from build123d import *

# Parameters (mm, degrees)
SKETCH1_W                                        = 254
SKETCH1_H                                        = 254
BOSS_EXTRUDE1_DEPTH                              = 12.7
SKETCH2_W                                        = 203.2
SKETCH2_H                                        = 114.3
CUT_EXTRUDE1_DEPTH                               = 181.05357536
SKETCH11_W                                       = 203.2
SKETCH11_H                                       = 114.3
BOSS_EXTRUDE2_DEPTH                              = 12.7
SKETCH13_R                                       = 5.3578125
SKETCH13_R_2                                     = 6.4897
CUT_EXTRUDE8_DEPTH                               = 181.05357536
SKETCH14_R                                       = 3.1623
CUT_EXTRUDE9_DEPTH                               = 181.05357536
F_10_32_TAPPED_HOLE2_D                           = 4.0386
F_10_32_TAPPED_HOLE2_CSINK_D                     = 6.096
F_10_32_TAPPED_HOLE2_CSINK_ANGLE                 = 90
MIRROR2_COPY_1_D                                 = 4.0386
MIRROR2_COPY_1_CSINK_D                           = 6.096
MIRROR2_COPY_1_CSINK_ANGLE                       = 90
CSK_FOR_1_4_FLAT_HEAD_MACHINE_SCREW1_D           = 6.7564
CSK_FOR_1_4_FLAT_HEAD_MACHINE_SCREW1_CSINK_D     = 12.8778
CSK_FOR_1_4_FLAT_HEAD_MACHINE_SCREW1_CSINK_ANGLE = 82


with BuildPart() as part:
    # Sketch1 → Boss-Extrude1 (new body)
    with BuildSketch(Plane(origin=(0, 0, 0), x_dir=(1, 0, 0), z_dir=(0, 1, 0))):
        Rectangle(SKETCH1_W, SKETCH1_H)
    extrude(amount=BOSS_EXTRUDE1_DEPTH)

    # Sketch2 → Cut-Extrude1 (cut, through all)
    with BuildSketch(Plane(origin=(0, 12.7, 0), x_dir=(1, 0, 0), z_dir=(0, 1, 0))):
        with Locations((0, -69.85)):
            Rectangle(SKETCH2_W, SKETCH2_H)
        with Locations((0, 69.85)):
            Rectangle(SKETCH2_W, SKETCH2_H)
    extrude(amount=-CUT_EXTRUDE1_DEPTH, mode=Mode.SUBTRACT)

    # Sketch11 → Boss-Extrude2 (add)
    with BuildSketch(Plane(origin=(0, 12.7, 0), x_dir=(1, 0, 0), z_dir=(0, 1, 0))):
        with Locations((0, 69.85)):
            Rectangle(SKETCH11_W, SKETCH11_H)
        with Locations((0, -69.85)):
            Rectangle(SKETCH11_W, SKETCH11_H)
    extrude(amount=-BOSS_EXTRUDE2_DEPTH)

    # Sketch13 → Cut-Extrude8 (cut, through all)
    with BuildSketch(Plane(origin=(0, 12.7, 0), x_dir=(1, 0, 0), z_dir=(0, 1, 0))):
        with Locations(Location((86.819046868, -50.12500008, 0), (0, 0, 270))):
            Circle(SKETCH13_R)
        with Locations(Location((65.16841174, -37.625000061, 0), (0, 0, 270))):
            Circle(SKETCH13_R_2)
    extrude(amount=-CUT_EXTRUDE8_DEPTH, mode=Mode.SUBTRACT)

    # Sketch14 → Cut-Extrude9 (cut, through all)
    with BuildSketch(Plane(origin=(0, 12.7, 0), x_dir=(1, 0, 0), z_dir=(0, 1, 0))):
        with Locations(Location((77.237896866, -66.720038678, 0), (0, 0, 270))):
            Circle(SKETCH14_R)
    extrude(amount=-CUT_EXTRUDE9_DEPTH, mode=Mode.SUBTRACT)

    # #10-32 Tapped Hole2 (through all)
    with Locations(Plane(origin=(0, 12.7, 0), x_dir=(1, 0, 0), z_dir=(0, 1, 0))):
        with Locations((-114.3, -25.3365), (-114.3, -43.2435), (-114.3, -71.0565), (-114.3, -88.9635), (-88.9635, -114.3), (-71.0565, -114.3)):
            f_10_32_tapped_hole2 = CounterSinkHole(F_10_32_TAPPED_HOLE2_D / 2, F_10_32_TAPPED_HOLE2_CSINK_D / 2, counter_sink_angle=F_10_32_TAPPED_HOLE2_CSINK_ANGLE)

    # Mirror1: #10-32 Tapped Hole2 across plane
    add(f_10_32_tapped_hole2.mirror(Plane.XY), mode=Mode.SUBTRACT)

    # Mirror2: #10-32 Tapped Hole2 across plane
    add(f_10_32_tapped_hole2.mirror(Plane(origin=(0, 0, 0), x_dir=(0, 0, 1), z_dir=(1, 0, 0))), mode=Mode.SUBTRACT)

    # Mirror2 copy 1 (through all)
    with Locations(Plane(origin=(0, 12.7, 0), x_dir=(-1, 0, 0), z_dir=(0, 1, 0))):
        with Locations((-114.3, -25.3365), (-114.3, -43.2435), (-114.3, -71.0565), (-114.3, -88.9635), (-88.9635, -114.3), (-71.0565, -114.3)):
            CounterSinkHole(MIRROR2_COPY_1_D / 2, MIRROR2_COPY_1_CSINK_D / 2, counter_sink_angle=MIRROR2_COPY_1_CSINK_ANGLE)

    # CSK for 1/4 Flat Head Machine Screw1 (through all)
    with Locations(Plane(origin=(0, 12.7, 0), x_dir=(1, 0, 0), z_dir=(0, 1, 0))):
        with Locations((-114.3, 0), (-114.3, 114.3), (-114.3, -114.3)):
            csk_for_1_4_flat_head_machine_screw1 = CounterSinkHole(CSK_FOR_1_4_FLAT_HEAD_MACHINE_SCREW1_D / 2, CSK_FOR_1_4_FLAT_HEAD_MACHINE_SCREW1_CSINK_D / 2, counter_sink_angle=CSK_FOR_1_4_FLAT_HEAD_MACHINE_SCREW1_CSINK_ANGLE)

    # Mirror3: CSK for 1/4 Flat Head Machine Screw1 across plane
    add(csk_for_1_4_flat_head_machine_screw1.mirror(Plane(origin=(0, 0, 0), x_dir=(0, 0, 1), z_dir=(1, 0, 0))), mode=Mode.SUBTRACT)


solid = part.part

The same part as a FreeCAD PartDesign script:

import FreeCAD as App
import Part
import Sketcher
from FreeCAD import Vector
Q = App.Units.Quantity

doc = App.newDocument("Part")
params = doc.addObject("Spreadsheet::Sheet", "Params")
for row, (alias, value) in enumerate([
    ("sketch1_width", "10 in"),
    ("pad1_length", "0.5 in"),
    ("sketch2_width", "8 in"),
    ("sketch2_height", "4.5 in"),
    ("sketch3_width", "8 in"),
    ("sketch3_height", "4.5 in"),
    ("pad2_length", "0.5 in"),
    ("sketch4_diameter", "0.421875 in"),
    ("sketch4_diameter2", "0.511 in"),
    ("sketch5_diameter", "0.249 in"),
    ("sketch6_diameter", "0.159 in"),
    ("hole_diameter", "0.159 in"),
    ("hole_csink_diameter", "0.24 in"),
    ("sketch7_diameter", "0.159 in"),
    ("hole2_diameter", "0.159 in"),
    ("hole2_csink_diameter", "0.24 in"),
    ("sketch8_diameter", "0.266 in"),
    ("hole3_diameter", "0.266 in"),
    ("hole3_csink_diameter", "0.507 in"),
], start=1):
    params.set(f"A{row}", alias)
    params.set(f"B{row}", "=" + value)
    params.setAlias(f"B{row}", alias)

body = doc.addObject("PartDesign::Body", "Body")

sketch1 = body.newObject("Sketcher::SketchObject", "Sketch")
sketch1.AttachmentSupport = (doc.getObject("XZ_Plane"), [""])
sketch1.MapMode = "FlatFace"
sketch1.addGeometry([
    Part.LineSegment(Vector(-127, -127, 0), Vector(-127, 127, 0)),
    Part.LineSegment(Vector(-127, 127, 0), Vector(127, 127, 0)),
    Part.LineSegment(Vector(127, 127, 0), Vector(127, -127, 0)),
    Part.LineSegment(Vector(127, -127, 0), Vector(-127, -127, 0)),
], False)
sketch1.addConstraint([
    Sketcher.Constraint("Coincident", 0, 2, 1, 1),
    Sketcher.Constraint("Coincident", 1, 2, 2, 1),
    Sketcher.Constraint("Coincident", 2, 2, 3, 1),
    Sketcher.Constraint("Coincident", 3, 2, 0, 1),
    Sketcher.Constraint("Vertical", 0),
    Sketcher.Constraint("Horizontal", 1),
    Sketcher.Constraint("Vertical", 2),
    Sketcher.Constraint("Horizontal", 3),
    Sketcher.Constraint("Symmetric", 0, 2, 2, 2, -1, 1),
    Sketcher.Constraint("Equal", 3, 0),
    Sketcher.Constraint("DistanceX", 1, 1, 1, 2, Q("10 in")),
])
sketch1.setExpression("Constraints[10]", "Params.sketch1_width")
pad1 = body.newObject("PartDesign::Pad", "Pad")
pad1.Profile = sketch1
pad1.setExpression("Length", "Params.pad1_length")
pad1.Reversed = True

sketch2 = body.newObject("Sketcher::SketchObject", "Sketch001")
sketch2.AttachmentSupport = (doc.getObject("XZ_Plane"), [""])
sketch2.MapMode = "FlatFace"
sketch2.AttachmentOffset = App.Placement(Vector(0, 0, -0.5 * 25.4), App.Rotation())
sketch2.addGeometry([
    Part.LineSegment(Vector(-101.6, 12.7, 0), Vector(-101.6, 127, 0)),
    Part.LineSegment(Vector(-101.6, 127, 0), Vector(101.6, 127, 0)),
    Part.LineSegment(Vector(101.6, 127, 0), Vector(101.6, 12.7, 0)),
    Part.LineSegment(Vector(101.6, 12.7, 0), Vector(-101.6, 12.7, 0)),
    Part.LineSegment(Vector(-101.6, -127, 0), Vector(-101.6, -12.7, 0)),
    Part.LineSegment(Vector(-101.6, -12.7, 0), Vector(101.6, -12.7, 0)),
    Part.LineSegment(Vector(101.6, -12.7, 0), Vector(101.6, -127, 0)),
    Part.LineSegment(Vector(101.6, -127, 0), Vector(-101.6, -127, 0)),
], False)
sketch2.addConstraint([
    Sketcher.Constraint("Coincident", 0, 2, 1, 1),
    Sketcher.Constraint("Coincident", 1, 2, 2, 1),
    Sketcher.Constraint("Coincident", 2, 2, 3, 1),
    Sketcher.Constraint("Coincident", 3, 2, 0, 1),
    Sketcher.Constraint("Coincident", 4, 2, 5, 1),
    Sketcher.Constraint("Coincident", 5, 2, 6, 1),
    Sketcher.Constraint("Coincident", 6, 2, 7, 1),
    Sketcher.Constraint("Coincident", 7, 2, 4, 1),
    Sketcher.Constraint("Vertical", 0),
    Sketcher.Constraint("Horizontal", 1),
    Sketcher.Constraint("Vertical", 2),
    Sketcher.Constraint("Horizontal", 3),
    Sketcher.Constraint("Vertical", 4),
    Sketcher.Constraint("Horizontal", 5),
    Sketcher.Constraint("Vertical", 6),
    Sketcher.Constraint("Horizontal", 7),
    Sketcher.Constraint("Symmetric", 2, 2, 4, 2, -1, 1),
    Sketcher.Constraint("Symmetric", 0, 2, 6, 2, -1, 1),
    Sketcher.Constraint("Vertical", 3, 2, 4, 2),
    Sketcher.Constraint("DistanceX", 1, 1, 1, 2, Q("8 in")),
    Sketcher.Constraint("DistanceY", 0, 1, 0, 2, Q("4.5 in")),
    Sketcher.Constraint("DistanceY", -1, 1, 0, 2, Q("5 in")),
])
sketch2.setExpression("Constraints[19]", "Params.sketch2_width")
sketch2.setExpression("Constraints[20]", "Params.sketch2_height")
pocket1 = body.newObject("PartDesign::Pocket", "Pocket")
pocket1.Profile = sketch2
pocket1.Type = "ThroughAll"
pocket1.Reversed = True

sketch3 = body.newObject("Sketcher::SketchObject", "Sketch002")
sketch3.AttachmentSupport = (doc.getObject("XZ_Plane"), [""])
sketch3.MapMode = "FlatFace"
sketch3.AttachmentOffset = App.Placement(Vector(0, 0, -0.5 * 25.4), App.Rotation())
sketch3.addGeometry([
    Part.LineSegment(Vector(-101.6, -127, 0), Vector(-101.6, -12.7, 0)),
    Part.LineSegment(Vector(-101.6, -12.7, 0), Vector(101.6, -12.7, 0)),
    Part.LineSegment(Vector(101.6, -12.7, 0), Vector(101.6, -127, 0)),
    Part.LineSegment(Vector(101.6, -127, 0), Vector(-101.6, -127, 0)),
    Part.LineSegment(Vector(-101.6, 12.7, 0), Vector(-101.6, 127, 0)),
    Part.LineSegment(Vector(-101.6, 127, 0), Vector(101.6, 127, 0)),
    Part.LineSegment(Vector(101.6, 127, 0), Vector(101.6, 12.7, 0)),
    Part.LineSegment(Vector(101.6, 12.7, 0), Vector(-101.6, 12.7, 0)),
], False)
sketch3.addConstraint([
    Sketcher.Constraint("Coincident", 0, 2, 1, 1),
    Sketcher.Constraint("Coincident", 1, 2, 2, 1),
    Sketcher.Constraint("Coincident", 2, 2, 3, 1),
    Sketcher.Constraint("Coincident", 3, 2, 0, 1),
    Sketcher.Constraint("Coincident", 4, 2, 5, 1),
    Sketcher.Constraint("Coincident", 5, 2, 6, 1),
    Sketcher.Constraint("Coincident", 6, 2, 7, 1),
    Sketcher.Constraint("Coincident", 7, 2, 4, 1),
    Sketcher.Constraint("Vertical", 0),
    Sketcher.Constraint("Horizontal", 1),
    Sketcher.Constraint("Vertical", 2),
    Sketcher.Constraint("Horizontal", 3),
    Sketcher.Constraint("Vertical", 4),
    Sketcher.Constraint("Horizontal", 5),
    Sketcher.Constraint("Vertical", 6),
    Sketcher.Constraint("Horizontal", 7),
    Sketcher.Constraint("Symmetric", 2, 2, 4, 2, -1, 1),
    Sketcher.Constraint("Symmetric", 0, 2, 6, 2, -1, 1),
    Sketcher.Constraint("Vertical", 3, 2, 4, 2),
    Sketcher.Constraint("DistanceX", 1, 1, 1, 2, Q("8 in")),
    Sketcher.Constraint("DistanceY", 0, 1, 0, 2, Q("4.5 in")),
    Sketcher.Constraint("DistanceY", 2, 2, -1, 1, Q("5 in")),
])
sketch3.setExpression("Constraints[19]", "Params.sketch3_width")
sketch3.setExpression("Constraints[20]", "Params.sketch3_height")
pad2 = body.newObject("PartDesign::Pad", "Pad001")
pad2.Profile = sketch3
pad2.setExpression("Length", "Params.pad2_length")

sketch4 = body.newObject("Sketcher::SketchObject", "Sketch003")
sketch4.AttachmentSupport = (doc.getObject("XZ_Plane"), [""])
sketch4.MapMode = "FlatFace"
sketch4.AttachmentOffset = App.Placement(Vector(0, 0, -0.5 * 25.4), App.Rotation())
sketch4.addGeometry([
    Part.Circle(Vector(86.819047, 50.125, 0), Vector(0, 0, 1), 5.357812),
    Part.Circle(Vector(65.168412, 37.625, 0), Vector(0, 0, 1), 6.4897),
], False)
sketch4.addConstraint([
    Sketcher.Constraint("Diameter", 0, Q("0.421875 in")),
    Sketcher.Constraint("Diameter", 1, Q("0.511 in")),
    Sketcher.Constraint("DistanceY", -1, 1, 0, 3, Q("50.125 mm")),
    Sketcher.Constraint("DistanceY", -1, 1, 1, 3, Q("37.625 mm")),
    Sketcher.Constraint("DistanceX", -1, 1, 1, 3, Q("65.168412 mm")),
    Sketcher.Constraint("DistanceX", -1, 1, 0, 3, Q("86.819047 mm")),
])
sketch4.setExpression("Constraints[0]", "Params.sketch4_diameter")
sketch4.setExpression("Constraints[1]", "Params.sketch4_diameter2")
pocket2 = body.newObject("PartDesign::Pocket", "Pocket001")
pocket2.Profile = sketch4
pocket2.Type = "ThroughAll"
pocket2.Reversed = True

sketch5 = body.newObject("Sketcher::SketchObject", "Sketch004")
sketch5.AttachmentSupport = (doc.getObject("XZ_Plane"), [""])
sketch5.MapMode = "FlatFace"
sketch5.AttachmentOffset = App.Placement(Vector(0, 0, -0.5 * 25.4), App.Rotation())
sketch5.addGeometry(Part.Circle(Vector(77.237897, 66.720039, 0), Vector(0, 0, 1), 3.1623), False)
sketch5.addConstraint([
    Sketcher.Constraint("Diameter", 0, Q("0.249 in")),
    Sketcher.Constraint("DistanceY", -1, 1, 0, 3, Q("66.720039 mm")),
    Sketcher.Constraint("DistanceX", -1, 1, 0, 3, Q("77.237897 mm")),
])
sketch5.setExpression("Constraints[0]", "Params.sketch5_diameter")
pocket3 = body.newObject("PartDesign::Pocket", "Pocket002")
pocket3.Profile = sketch5
pocket3.Type = "ThroughAll"
pocket3.Reversed = True

sketch6 = body.newObject("Sketcher::SketchObject", "Sketch005")
sketch6.AttachmentSupport = (doc.getObject("XZ_Plane"), [""])
sketch6.MapMode = "FlatFace"
sketch6.AttachmentOffset = App.Placement(Vector(0, 0, -0.5 * 25.4), App.Rotation())
sketch6.addGeometry([
    Part.Circle(Vector(-114.3, 25.3365, 0), Vector(0, 0, 1), 2.0193),
    Part.Circle(Vector(-114.3, 43.2435, 0), Vector(0, 0, 1), 2.0193),
    Part.Circle(Vector(-114.3, 71.0565, 0), Vector(0, 0, 1), 2.0193),
    Part.Circle(Vector(-114.3, 88.9635, 0), Vector(0, 0, 1), 2.0193),
    Part.Circle(Vector(-88.9635, 114.3, 0), Vector(0, 0, 1), 2.0193),
    Part.Circle(Vector(-71.0565, 114.3, 0), Vector(0, 0, 1), 2.0193),
], False)
sketch6.addConstraint([
    Sketcher.Constraint("Equal", 0, 1),
    Sketcher.Constraint("Equal", 1, 2),
    Sketcher.Constraint("Equal", 2, 3),
    Sketcher.Constraint("Equal", 3, 4),
    Sketcher.Constraint("Equal", 4, 5),
    Sketcher.Constraint("Horizontal", 4, 3, 5, 3),
    Sketcher.Constraint("Vertical", 0, 3, 1, 3),
    Sketcher.Constraint("Vertical", 1, 3, 2, 3),
    Sketcher.Constraint("Vertical", 2, 3, 3, 3),
    Sketcher.Constraint("Diameter", 0, Q("0.159 in")),
    Sketcher.Constraint("DistanceX", 0, 3, -1, 1, Q("4.5 in")),
    Sketcher.Constraint("DistanceY", -1, 1, 4, 3, Q("4.5 in")),
    Sketcher.Constraint("DistanceY", 0, 3, 2, 3, Q("1.8 in")),
    Sketcher.Constraint("DistanceY", 1, 3, 3, 3, Q("1.8 in")),
    Sketcher.Constraint("DistanceY", 0, 3, 1, 3, Q("0.705 in")),
    Sketcher.Constraint("DistanceX", 4, 3, 5, 3, Q("0.705 in")),
    Sketcher.Constraint("DistanceY", -1, 1, 0, 3, Q("0.9975 in")),
    Sketcher.Constraint("DistanceX", 4, 3, -1, 1, Q("3.5025 in")),
])
sketch6.setExpression("Constraints[9]", "Params.sketch6_diameter")
doc.recompute()
hole = body.newObject("PartDesign::Hole", "Hole")
hole.Profile = sketch6
hole.ThreadType = "None"
hole.setExpression("Diameter", "Params.hole_diameter")
hole.DepthType = "ThroughAll"
hole.HoleCutType = "Countersink"
hole.setExpression("HoleCutDiameter", "Params.hole_csink_diameter")
hole.HoleCutCountersinkAngle = 90
hole.Reversed = True
doc.recompute()

mirrored = body.newObject("PartDesign::Mirrored", "Mirrored")
mirrored.Originals = [hole]
mirrored.MirrorPlane = (doc.getObject("XY_Plane"), [""])
body.Tip = mirrored
doc.recompute()

mirrored2 = body.newObject("PartDesign::Mirrored", "Mirrored001")
mirrored2.Originals = [hole]
mirrored2.MirrorPlane = (doc.getObject("YZ_Plane"), [""])
body.Tip = mirrored2

sketch7 = body.newObject("Sketcher::SketchObject", "Sketch006")
sketch7.AttachmentSupport = (doc.getObject("XZ_Plane"), [""])
sketch7.MapMode = "FlatFace"
sketch7.AttachmentOffset = App.Placement(Vector(0, 0, -0.5 * 25.4), App.Rotation())
sketch7.addGeometry([
    Part.Circle(Vector(114.3, -25.3365, 0), Vector(0, 0, 1), 2.0193),
    Part.Circle(Vector(114.3, -43.2435, 0), Vector(0, 0, 1), 2.0193),
    Part.Circle(Vector(114.3, -71.0565, 0), Vector(0, 0, 1), 2.0193),
    Part.Circle(Vector(114.3, -88.9635, 0), Vector(0, 0, 1), 2.0193),
    Part.Circle(Vector(88.9635, -114.3, 0), Vector(0, 0, 1), 2.0193),
    Part.Circle(Vector(71.0565, -114.3, 0), Vector(0, 0, 1), 2.0193),
], False)
sketch7.addConstraint([
    Sketcher.Constraint("Equal", 0, 1),
    Sketcher.Constraint("Equal", 1, 2),
    Sketcher.Constraint("Equal", 2, 3),
    Sketcher.Constraint("Equal", 3, 4),
    Sketcher.Constraint("Equal", 4, 5),
    Sketcher.Constraint("Horizontal", 4, 3, 5, 3),
    Sketcher.Constraint("Vertical", 0, 3, 1, 3),
    Sketcher.Constraint("Vertical", 1, 3, 2, 3),
    Sketcher.Constraint("Vertical", 2, 3, 3, 3),
    Sketcher.Constraint("Diameter", 0, Q("0.159 in")),
    Sketcher.Constraint("DistanceX", -1, 1, 0, 3, Q("4.5 in")),
    Sketcher.Constraint("DistanceY", 4, 3, -1, 1, Q("4.5 in")),
    Sketcher.Constraint("DistanceY", 2, 3, 0, 3, Q("1.8 in")),
    Sketcher.Constraint("DistanceY", 3, 3, 1, 3, Q("1.8 in")),
    Sketcher.Constraint("DistanceY", 1, 3, 0, 3, Q("0.705 in")),
    Sketcher.Constraint("DistanceX", 5, 3, 4, 3, Q("0.705 in")),
    Sketcher.Constraint("DistanceY", 0, 3, -1, 1, Q("0.9975 in")),
    Sketcher.Constraint("DistanceX", -1, 1, 4, 3, Q("3.5025 in")),
])
sketch7.setExpression("Constraints[9]", "Params.sketch7_diameter")
doc.recompute()
hole2 = body.newObject("PartDesign::Hole", "Hole001")
hole2.Profile = sketch7
hole2.ThreadType = "None"
hole2.setExpression("Diameter", "Params.hole2_diameter")
hole2.DepthType = "ThroughAll"
hole2.HoleCutType = "Countersink"
hole2.setExpression("HoleCutDiameter", "Params.hole2_csink_diameter")
hole2.HoleCutCountersinkAngle = 90
hole2.Reversed = True

sketch8 = body.newObject("Sketcher::SketchObject", "Sketch007")
sketch8.AttachmentSupport = (doc.getObject("XZ_Plane"), [""])
sketch8.MapMode = "FlatFace"
sketch8.AttachmentOffset = App.Placement(Vector(0, 0, -0.5 * 25.4), App.Rotation())
sketch8.addGeometry([
    Part.Circle(Vector(-114.3, 0, 0), Vector(0, 0, 1), 3.3782),
    Part.Circle(Vector(-114.3, -114.3, 0), Vector(0, 0, 1), 3.3782),
    Part.Circle(Vector(-114.3, 114.3, 0), Vector(0, 0, 1), 3.3782),
], False)
sketch8.addConstraint([
    Sketcher.Constraint("Equal", 0, 1),
    Sketcher.Constraint("Equal", 1, 2),
    Sketcher.Constraint("Symmetric", 1, 3, 2, 3, -1),
    Sketcher.Constraint("PointOnObject", 0, 3, -1),
    Sketcher.Constraint("Vertical", 0, 3, 1, 3),
    Sketcher.Constraint("Diameter", 0, Q("0.266 in")),
    Sketcher.Constraint("DistanceY", 1, 3, 2, 3, Q("9 in")),
    Sketcher.Constraint("DistanceX", 0, 3, -1, 1, Q("4.5 in")),
])
sketch8.setExpression("Constraints[5]", "Params.sketch8_diameter")
doc.recompute()
hole3 = body.newObject("PartDesign::Hole", "Hole002")
hole3.Profile = sketch8
hole3.ThreadType = "None"
hole3.setExpression("Diameter", "Params.hole3_diameter")
hole3.DepthType = "ThroughAll"
hole3.HoleCutType = "Countersink"
hole3.setExpression("HoleCutDiameter", "Params.hole3_csink_diameter")
hole3.HoleCutCountersinkAngle = 82
hole3.Reversed = True
doc.recompute()

mirrored3 = body.newObject("PartDesign::Mirrored", "Mirrored002")
mirrored3.Originals = [hole3]
mirrored3.MirrorPlane = (doc.getObject("YZ_Plane"), [""])
body.Tip = mirrored3

doc.recompute()
